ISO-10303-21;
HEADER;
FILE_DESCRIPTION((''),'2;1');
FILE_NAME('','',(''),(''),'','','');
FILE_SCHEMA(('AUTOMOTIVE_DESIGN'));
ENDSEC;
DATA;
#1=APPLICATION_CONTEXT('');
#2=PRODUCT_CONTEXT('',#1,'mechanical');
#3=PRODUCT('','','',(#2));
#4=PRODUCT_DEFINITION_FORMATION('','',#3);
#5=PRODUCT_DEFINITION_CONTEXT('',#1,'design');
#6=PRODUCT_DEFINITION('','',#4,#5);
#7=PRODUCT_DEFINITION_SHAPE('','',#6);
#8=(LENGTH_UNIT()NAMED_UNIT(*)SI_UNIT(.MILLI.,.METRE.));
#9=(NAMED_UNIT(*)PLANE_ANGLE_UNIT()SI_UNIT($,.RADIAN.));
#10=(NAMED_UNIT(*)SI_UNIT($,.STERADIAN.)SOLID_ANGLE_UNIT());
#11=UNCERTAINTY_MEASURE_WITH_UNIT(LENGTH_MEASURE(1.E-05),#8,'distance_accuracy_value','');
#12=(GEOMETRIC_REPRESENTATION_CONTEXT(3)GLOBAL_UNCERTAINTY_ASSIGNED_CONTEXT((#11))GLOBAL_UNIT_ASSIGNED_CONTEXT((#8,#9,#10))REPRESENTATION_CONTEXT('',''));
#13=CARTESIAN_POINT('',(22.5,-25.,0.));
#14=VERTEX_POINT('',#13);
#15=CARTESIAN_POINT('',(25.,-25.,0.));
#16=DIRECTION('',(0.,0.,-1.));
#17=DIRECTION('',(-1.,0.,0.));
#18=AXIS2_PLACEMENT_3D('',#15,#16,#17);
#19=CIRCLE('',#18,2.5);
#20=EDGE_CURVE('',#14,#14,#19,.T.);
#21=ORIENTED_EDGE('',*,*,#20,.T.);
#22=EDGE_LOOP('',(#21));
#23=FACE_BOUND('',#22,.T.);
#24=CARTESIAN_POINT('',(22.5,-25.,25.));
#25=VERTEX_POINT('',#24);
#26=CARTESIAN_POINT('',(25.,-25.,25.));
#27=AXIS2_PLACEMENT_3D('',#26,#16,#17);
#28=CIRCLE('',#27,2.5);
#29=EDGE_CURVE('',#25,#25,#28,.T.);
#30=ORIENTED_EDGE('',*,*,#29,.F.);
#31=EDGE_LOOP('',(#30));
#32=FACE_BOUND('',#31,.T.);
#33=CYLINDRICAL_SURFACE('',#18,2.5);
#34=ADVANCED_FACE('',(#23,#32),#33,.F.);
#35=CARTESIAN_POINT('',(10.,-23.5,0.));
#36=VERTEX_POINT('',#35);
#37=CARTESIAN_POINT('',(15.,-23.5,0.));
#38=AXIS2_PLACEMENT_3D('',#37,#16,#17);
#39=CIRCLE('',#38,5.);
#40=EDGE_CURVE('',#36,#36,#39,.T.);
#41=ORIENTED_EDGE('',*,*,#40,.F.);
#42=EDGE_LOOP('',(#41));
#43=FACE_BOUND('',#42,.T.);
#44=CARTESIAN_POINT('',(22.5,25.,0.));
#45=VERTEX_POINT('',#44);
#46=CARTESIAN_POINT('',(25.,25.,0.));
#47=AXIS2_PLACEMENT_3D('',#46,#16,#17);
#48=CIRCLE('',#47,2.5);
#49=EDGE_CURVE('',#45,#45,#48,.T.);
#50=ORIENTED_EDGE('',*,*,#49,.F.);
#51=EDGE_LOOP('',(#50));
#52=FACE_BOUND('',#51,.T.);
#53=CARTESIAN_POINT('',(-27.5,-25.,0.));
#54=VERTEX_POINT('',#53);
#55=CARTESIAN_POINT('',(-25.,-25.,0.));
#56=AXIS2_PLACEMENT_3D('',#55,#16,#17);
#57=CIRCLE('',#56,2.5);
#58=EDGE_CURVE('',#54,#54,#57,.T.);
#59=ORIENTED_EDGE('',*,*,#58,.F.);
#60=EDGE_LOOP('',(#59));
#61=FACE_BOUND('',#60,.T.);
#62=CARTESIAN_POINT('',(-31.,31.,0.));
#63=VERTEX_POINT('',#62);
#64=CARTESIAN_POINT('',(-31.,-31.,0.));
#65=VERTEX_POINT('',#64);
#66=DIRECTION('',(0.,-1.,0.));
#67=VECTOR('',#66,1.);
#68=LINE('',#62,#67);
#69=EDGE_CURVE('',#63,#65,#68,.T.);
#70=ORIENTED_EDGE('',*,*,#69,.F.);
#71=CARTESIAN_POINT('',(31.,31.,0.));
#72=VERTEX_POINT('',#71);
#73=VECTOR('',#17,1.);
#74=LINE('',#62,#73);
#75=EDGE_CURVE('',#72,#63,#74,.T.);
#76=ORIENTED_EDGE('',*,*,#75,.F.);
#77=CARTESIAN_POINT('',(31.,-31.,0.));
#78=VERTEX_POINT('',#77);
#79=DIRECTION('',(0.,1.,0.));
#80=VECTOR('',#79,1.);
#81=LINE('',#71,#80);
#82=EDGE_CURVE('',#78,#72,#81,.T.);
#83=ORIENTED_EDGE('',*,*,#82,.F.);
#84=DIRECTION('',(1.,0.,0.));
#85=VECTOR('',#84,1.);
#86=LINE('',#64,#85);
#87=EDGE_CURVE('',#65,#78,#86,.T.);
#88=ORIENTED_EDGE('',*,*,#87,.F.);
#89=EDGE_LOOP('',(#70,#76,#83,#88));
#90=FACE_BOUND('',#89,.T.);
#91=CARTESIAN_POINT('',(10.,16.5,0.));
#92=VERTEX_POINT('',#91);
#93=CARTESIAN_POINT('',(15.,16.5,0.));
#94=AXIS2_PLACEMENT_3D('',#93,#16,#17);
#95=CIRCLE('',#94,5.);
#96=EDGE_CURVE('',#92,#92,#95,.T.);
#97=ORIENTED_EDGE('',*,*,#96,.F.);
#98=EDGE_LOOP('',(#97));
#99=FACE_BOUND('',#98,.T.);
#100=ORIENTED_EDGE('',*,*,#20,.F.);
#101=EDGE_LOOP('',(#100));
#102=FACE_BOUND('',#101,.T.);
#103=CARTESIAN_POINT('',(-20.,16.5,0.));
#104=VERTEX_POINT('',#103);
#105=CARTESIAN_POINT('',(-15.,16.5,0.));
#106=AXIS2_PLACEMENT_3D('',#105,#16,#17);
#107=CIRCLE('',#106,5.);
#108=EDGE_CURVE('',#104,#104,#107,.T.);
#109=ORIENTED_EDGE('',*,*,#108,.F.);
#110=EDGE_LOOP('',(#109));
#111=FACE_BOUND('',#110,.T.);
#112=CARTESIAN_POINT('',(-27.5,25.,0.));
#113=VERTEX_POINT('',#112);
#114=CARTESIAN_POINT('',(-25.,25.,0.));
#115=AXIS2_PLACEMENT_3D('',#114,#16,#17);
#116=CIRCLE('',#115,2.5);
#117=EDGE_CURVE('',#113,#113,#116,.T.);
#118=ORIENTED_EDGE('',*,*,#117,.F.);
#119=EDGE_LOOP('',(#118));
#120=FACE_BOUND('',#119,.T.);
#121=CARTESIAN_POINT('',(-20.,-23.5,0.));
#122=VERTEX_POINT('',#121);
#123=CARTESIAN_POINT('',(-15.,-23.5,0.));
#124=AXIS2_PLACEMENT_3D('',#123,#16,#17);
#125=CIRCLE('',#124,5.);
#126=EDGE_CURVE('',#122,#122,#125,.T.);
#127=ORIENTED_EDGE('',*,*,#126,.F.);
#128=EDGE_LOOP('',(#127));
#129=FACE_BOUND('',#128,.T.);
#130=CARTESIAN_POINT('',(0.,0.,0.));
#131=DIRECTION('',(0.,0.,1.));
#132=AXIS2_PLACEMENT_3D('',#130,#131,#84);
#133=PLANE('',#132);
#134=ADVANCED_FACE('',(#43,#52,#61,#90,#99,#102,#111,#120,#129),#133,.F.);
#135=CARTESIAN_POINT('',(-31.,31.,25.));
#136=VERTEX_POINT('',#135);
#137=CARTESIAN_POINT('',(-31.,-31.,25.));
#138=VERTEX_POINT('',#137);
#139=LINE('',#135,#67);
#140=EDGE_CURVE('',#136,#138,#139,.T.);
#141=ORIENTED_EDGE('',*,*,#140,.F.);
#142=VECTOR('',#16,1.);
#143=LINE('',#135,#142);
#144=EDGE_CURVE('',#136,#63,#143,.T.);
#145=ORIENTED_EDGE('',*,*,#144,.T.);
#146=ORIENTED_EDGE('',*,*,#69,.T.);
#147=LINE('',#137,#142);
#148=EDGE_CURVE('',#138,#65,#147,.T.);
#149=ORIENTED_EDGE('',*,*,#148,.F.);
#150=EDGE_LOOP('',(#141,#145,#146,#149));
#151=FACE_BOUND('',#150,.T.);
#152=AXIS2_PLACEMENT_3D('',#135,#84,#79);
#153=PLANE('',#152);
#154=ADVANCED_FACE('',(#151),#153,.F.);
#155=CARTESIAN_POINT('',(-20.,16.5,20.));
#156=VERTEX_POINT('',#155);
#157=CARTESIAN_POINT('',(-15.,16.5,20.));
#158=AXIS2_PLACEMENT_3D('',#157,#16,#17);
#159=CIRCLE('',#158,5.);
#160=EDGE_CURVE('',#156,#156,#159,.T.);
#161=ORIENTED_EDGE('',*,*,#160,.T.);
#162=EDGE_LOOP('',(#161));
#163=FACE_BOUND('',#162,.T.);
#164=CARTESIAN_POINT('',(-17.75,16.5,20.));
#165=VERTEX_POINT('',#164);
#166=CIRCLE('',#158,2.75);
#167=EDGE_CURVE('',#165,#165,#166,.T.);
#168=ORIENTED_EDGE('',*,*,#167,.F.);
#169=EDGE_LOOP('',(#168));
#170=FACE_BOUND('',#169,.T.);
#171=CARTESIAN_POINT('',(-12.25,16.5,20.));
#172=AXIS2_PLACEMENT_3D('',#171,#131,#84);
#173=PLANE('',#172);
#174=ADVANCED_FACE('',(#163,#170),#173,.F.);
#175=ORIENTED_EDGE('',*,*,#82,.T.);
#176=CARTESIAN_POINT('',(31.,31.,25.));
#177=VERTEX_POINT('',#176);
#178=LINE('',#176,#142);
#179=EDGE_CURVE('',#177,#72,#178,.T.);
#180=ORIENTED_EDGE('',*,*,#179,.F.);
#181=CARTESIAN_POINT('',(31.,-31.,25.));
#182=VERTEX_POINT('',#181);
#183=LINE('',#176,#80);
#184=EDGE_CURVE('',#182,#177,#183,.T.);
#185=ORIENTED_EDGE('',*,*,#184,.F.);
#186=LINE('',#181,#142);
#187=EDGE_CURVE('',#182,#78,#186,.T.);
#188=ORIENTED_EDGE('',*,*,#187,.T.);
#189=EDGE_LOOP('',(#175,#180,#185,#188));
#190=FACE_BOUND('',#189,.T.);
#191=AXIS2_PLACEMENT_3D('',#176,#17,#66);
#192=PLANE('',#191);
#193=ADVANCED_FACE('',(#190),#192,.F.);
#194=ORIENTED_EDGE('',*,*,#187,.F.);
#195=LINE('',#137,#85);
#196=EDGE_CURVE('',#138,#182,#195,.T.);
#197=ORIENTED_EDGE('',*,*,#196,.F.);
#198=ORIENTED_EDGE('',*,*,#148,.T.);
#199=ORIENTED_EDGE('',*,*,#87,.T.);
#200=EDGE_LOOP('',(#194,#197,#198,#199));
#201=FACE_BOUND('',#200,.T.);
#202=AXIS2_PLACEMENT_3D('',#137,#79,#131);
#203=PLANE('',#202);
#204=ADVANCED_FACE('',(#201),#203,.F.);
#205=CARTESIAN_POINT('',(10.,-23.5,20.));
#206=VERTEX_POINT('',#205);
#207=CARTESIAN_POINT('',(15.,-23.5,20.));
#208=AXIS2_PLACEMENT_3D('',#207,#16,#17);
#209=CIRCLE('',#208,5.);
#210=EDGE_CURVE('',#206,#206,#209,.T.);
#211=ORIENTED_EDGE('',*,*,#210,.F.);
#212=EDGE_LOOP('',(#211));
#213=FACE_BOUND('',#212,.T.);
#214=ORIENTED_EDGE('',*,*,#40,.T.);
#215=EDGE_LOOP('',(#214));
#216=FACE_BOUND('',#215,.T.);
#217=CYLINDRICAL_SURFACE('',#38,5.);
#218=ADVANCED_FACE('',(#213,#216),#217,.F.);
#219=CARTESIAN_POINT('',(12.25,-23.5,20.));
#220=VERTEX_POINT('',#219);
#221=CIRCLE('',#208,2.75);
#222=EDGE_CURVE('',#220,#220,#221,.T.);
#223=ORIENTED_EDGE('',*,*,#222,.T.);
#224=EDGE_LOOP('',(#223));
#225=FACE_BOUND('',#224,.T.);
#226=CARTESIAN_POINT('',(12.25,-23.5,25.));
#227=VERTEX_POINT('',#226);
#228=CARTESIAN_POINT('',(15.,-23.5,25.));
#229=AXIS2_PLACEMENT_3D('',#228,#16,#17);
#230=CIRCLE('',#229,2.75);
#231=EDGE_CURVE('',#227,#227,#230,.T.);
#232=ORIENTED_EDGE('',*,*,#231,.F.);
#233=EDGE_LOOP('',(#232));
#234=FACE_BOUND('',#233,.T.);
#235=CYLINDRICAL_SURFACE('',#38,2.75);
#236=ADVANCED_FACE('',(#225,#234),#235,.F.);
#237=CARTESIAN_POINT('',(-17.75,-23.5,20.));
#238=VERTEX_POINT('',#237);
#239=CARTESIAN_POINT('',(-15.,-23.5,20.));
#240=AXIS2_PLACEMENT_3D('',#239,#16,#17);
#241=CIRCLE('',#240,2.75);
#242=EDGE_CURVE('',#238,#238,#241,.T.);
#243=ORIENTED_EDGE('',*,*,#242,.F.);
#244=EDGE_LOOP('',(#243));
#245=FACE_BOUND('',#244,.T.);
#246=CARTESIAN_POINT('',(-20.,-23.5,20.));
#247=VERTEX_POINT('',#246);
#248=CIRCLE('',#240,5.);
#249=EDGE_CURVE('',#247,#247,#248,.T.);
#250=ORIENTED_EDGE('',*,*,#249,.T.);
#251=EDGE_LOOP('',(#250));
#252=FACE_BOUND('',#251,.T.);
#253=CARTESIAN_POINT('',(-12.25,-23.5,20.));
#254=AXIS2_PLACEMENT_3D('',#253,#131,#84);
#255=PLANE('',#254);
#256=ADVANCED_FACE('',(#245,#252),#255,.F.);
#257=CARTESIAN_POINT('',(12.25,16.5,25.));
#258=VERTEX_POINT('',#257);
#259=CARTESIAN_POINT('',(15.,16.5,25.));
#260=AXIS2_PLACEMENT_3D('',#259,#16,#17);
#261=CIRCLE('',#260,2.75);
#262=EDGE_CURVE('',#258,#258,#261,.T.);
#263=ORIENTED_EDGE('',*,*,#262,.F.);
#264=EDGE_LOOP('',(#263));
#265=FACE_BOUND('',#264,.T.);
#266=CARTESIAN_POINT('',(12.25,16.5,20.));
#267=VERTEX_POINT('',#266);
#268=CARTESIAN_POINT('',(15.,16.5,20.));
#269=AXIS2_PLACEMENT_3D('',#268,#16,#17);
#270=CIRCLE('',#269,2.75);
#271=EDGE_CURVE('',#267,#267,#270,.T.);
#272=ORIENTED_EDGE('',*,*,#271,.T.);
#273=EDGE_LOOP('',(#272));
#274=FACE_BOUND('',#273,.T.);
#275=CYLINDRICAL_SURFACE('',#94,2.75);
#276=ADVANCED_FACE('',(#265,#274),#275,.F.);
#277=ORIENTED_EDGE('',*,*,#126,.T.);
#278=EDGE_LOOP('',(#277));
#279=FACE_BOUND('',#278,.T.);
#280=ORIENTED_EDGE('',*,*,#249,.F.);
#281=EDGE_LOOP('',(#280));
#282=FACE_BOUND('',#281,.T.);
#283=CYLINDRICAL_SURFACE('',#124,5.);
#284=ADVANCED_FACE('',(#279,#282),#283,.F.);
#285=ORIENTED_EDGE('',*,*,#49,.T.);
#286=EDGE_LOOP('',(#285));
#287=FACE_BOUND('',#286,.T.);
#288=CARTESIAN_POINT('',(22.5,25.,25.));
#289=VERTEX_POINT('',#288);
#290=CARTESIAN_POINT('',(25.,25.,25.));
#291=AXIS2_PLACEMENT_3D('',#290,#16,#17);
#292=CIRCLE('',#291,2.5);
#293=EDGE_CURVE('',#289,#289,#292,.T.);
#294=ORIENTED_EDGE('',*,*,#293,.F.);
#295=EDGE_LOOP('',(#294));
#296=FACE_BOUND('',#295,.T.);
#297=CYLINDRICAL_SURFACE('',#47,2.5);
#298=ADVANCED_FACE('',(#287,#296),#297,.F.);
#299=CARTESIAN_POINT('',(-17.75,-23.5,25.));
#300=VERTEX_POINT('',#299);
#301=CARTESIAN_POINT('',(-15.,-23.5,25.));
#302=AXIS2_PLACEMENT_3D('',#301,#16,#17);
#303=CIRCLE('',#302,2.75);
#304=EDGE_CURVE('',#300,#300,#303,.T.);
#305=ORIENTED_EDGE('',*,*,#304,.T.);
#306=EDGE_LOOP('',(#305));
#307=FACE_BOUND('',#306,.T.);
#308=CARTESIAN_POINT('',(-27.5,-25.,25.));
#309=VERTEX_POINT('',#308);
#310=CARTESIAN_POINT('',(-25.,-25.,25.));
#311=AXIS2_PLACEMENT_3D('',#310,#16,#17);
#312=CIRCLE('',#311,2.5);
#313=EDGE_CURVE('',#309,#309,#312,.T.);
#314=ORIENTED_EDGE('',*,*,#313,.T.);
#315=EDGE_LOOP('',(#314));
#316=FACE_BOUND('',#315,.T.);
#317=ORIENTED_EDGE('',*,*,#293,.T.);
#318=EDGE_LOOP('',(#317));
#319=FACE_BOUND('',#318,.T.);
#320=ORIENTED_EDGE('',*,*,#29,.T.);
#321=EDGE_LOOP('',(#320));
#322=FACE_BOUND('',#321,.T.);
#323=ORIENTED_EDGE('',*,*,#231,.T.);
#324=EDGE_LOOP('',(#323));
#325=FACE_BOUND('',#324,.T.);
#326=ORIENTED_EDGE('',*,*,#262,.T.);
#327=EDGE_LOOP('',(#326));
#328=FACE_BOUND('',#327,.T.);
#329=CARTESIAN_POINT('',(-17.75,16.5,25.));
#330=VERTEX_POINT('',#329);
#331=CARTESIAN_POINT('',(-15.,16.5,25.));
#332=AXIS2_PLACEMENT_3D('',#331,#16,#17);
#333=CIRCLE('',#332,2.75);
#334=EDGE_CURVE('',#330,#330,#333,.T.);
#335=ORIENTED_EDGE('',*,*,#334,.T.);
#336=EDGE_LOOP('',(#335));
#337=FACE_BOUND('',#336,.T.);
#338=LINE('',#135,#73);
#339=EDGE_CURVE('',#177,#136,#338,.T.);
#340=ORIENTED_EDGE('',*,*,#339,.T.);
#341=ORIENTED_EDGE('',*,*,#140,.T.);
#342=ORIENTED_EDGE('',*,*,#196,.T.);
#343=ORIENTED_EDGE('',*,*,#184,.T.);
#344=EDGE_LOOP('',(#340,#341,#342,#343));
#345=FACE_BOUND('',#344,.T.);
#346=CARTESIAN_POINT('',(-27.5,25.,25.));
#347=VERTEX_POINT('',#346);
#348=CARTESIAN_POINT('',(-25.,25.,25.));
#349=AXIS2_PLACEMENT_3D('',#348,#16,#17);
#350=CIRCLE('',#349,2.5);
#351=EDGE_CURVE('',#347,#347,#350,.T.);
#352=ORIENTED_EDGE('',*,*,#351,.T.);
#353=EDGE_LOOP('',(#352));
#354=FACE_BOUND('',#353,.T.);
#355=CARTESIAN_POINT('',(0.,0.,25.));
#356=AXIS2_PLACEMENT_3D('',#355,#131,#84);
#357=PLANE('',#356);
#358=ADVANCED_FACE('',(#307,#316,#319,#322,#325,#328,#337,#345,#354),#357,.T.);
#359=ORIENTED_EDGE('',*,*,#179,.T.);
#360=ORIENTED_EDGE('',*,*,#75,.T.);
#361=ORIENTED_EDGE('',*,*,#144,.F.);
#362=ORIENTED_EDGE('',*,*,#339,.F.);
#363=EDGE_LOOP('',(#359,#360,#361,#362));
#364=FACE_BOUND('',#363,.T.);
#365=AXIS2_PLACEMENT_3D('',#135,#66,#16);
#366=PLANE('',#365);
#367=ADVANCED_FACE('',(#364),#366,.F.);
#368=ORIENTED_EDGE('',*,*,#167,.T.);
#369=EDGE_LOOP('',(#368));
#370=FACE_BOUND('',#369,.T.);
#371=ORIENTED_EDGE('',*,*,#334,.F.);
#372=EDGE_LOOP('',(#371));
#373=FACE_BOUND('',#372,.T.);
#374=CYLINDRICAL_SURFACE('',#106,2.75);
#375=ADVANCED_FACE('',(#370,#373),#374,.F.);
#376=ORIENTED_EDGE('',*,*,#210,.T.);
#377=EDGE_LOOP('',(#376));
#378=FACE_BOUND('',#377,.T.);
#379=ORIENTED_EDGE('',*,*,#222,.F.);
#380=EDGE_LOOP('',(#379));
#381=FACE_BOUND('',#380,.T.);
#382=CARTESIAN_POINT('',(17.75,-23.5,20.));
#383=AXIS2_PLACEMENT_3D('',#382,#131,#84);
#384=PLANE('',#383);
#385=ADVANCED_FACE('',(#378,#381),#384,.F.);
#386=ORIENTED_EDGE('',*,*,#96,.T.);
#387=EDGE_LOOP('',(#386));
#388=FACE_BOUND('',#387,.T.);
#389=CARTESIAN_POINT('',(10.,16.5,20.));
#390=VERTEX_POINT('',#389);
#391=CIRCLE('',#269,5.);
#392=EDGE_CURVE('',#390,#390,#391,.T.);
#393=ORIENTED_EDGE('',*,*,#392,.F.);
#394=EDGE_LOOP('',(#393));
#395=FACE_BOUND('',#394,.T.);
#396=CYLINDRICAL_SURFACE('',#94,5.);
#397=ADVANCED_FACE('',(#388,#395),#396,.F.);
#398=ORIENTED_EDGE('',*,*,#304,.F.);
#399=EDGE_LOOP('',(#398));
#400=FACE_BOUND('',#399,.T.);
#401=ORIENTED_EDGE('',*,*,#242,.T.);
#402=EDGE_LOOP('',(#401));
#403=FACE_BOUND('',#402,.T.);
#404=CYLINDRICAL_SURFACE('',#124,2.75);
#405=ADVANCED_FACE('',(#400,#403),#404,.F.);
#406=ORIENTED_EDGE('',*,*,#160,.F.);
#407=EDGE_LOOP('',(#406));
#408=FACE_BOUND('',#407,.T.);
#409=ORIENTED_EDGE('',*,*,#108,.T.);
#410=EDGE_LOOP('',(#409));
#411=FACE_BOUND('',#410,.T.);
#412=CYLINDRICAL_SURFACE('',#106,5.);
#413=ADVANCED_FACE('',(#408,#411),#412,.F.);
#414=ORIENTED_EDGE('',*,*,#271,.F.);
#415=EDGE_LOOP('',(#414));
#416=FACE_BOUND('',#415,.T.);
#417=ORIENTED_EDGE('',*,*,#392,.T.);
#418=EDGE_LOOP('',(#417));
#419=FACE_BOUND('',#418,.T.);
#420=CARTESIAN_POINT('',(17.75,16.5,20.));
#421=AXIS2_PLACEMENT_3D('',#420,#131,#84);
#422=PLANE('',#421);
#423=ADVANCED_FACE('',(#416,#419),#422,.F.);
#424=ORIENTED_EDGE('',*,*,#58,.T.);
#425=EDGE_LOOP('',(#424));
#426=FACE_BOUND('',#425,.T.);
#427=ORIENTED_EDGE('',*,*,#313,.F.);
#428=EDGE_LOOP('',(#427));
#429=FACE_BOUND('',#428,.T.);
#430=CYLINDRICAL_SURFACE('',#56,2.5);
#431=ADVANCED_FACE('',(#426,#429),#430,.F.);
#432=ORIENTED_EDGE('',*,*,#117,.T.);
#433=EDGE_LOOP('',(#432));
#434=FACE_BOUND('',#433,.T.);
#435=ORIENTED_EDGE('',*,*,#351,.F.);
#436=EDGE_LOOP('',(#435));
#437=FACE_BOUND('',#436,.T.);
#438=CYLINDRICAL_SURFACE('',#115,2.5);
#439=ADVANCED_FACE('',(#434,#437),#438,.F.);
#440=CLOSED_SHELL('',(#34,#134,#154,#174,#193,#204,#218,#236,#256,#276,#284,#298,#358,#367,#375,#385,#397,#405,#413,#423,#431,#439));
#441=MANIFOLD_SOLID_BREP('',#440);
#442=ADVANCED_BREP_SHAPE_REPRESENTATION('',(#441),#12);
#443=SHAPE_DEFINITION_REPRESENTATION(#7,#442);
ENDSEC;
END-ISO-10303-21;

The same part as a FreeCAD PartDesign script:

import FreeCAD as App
import Part
import Sketcher
from FreeCAD import Vector
Q = App.Units.Quantity


def add_polygon(sketch, points):
    """Adds a closed chain of lines whose ends are joined by coincident constraints."""
    first, n = sketch.GeometryCount, len(points)
    for a, b in zip(points, points[1:] + points[:1]):
        sketch.addGeometry(Part.LineSegment(App.Vector(*a, 0), App.Vector(*b, 0)), False)
    for i in range(n):
        sketch.addConstraint(Sketcher.Constraint("Coincident", first + i, 2, first + (i + 1) % n, 1))

doc = App.newDocument("Part")
body = doc.addObject("PartDesign::Body", "Body")

# Sketch on XY plane
sketch1 = body.newObject("Sketcher::SketchObject", "Sketch")
sketch1.AttachmentSupport = (doc.getObject("XY_Plane"), [""])
sketch1.MapMode = "FlatFace"
add_polygon(sketch1, [(-31, 31), (-31, -31), (31, -31), (31, 31)])  # lines 0-3
sketch1.addConstraint([
    Sketcher.Constraint("Vertical", 0),
    Sketcher.Constraint("Horizontal", 1),
    Sketcher.Constraint("Vertical", 2),
    Sketcher.Constraint("Horizontal", 3),
    Sketcher.Constraint("Symmetric", 0, 2, 2, 2, -1, 1),
    Sketcher.Constraint("Equal", 3, 0),
    Sketcher.Constraint("DistanceX", 1, 1, 1, 2, Q("62 mm")),
])
pad1 = body.newObject("PartDesign::Pad", "Pad")
pad1.Profile = sketch1
pad1.Length = 25

# Sketch on XY plane
sketch2 = body.newObject("Sketcher::SketchObject", "Sketch001")
sketch2.AttachmentSupport = (doc.getObject("XY_Plane"), [""])
sketch2.MapMode = "FlatFace"
sketch2.addGeometry([
    Part.Circle(Vector(25, 25, 0), Vector(0, 0, 1), 2.5),
    Part.Circle(Vector(-25, 25, 0), Vector(0, 0, 1), 2.5),
    Part.Circle(Vector(25, -25, 0), Vector(0, 0, 1), 2.5),
    Part.Circle(Vector(-25, -25, 0), Vector(0, 0, 1), 2.5),
], False)
sketch2.addConstraint([
    Sketcher.Constraint("Equal", 0, 1),
    Sketcher.Constraint("Equal", 1, 2),
    Sketcher.Constraint("Equal", 2, 3),
    Sketcher.Constraint("Symmetric", 1, 3, 2, 3, -1, 1),
    Sketcher.Constraint("Symmetric", 0, 3, 3, 3, -1, 1),
    Sketcher.Constraint("Symmetric", 0, 3, 1, 3, -2),
    Sketcher.Constraint("Diameter", 0, Q("5 mm")),
    Sketcher.Constraint("DistanceX", -1, 1, 0, 3, Q("25 mm")),
    Sketcher.Constraint("DistanceY", -1, 1, 0, 3, Q("25 mm")),
])
doc.recompute()
hole = body.newObject("PartDesign::Hole", "Hole")
hole.Profile = sketch2
hole.ThreadType = "None"
hole.Diameter = 5
hole.DepthType = "ThroughAll"
hole.Reversed = True

# Sketch on XY plane
sketch3 = body.newObject("Sketcher::SketchObject", "Sketch002")
sketch3.AttachmentSupport = (doc.getObject("XY_Plane"), [""])
sketch3.MapMode = "FlatFace"
sketch3.addGeometry([
    Part.Circle(Vector(15, 16.5, 0), Vector(0, 0, 1), 2.8),
    Part.Circle(Vector(-15, 16.5, 0), Vector(0, 0, 1), 2.8),
    Part.Circle(Vector(-15, -23.5, 0), Vector(0, 0, 1), 2.8),
    Part.Circle(Vector(15, -23.5, 0), Vector(0, 0, 1), 2.8),
], False)
sketch3.addConstraint([
    Sketcher.Constraint("Equal", 0, 1),
    Sketcher.Constraint("Equal", 1, 2),
    Sketcher.Constraint("Equal", 2, 3),
    Sketcher.Constraint("Symmetric", 0, 3, 1, 3, -2),
    Sketcher.Constraint("Symmetric", 2, 3, 3, 3, -2),
    Sketcher.Constraint("Vertical", 1, 3, 2, 3),
    Sketcher.Constraint("Diameter", 0, Q("5.5 mm")),
    Sketcher.Constraint("DistanceX", -1, 1, 0, 3, Q("15 mm")),
    Sketcher.Constraint("DistanceY", 2, 3, 1, 3, Q("40 mm")),
    Sketcher.Constraint("DistanceY", -1, 1, 0, 3, Q("16.5 mm")),
])
doc.recompute()
hole2 = body.newObject("PartDesign::Hole", "Hole001")
hole2.Profile = sketch3
hole2.ThreadType = "None"
hole2.Diameter = 5.5
hole2.DepthType = "ThroughAll"
hole2.HoleCutType = "Counterbore"
hole2.HoleCutDiameter = 10
hole2.HoleCutDepth = 20
hole2.Reversed = True

doc.recompute()
